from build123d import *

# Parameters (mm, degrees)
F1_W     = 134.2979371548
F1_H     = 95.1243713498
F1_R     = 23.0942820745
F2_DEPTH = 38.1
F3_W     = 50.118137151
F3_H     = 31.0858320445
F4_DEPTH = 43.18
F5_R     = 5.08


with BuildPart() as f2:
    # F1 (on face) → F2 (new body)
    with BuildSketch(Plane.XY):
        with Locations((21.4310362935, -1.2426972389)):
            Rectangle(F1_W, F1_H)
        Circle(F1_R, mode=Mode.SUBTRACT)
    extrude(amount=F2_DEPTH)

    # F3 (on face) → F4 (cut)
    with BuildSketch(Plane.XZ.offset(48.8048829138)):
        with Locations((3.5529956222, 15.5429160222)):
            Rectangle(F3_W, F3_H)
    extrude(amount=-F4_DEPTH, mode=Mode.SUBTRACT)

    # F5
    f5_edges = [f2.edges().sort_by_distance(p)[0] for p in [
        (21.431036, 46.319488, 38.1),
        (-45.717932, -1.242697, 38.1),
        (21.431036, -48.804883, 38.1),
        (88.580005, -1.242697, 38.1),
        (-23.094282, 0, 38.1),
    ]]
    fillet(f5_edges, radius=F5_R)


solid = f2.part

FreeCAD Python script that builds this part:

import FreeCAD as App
import Part
import Sketcher

V = App.Vector
Q = App.Units.Quantity


def edges_at(feature, points):
    """Names of the edges that pass closest to the given points."""
    edges = feature.Shape.Edges
    near = lambda p: min(range(len(edges)), key=lambda i: edges[i].distToShape(Part.Vertex(*p))[0])
    return sorted({f"Edge{near(p) + 1}" for p in points})


def add_polygon(sketch, points):
    """Adds a closed chain of lines whose ends are joined by coincident constraints."""
    first, n = sketch.GeometryCount, len(points)
    for a, b in zip(points, points[1:] + points[:1]):
        sketch.addGeometry(Part.LineSegment(App.Vector(*a, 0), App.Vector(*b, 0)), False)
    for i in range(n):
        sketch.addConstraint(Sketcher.Constraint("Coincident", first + i, 2, first + (i + 1) % n, 1))

doc = App.newDocument("Part")
body = doc.addObject("PartDesign::Body", "Body")

# Sketch on XY plane
sketch1 = body.newObject("Sketcher::SketchObject", "Sketch")
sketch1.AttachmentSupport = (doc.getObject("XY_Plane"), [""])
sketch1.MapMode = "FlatFace"
add_polygon(sketch1, [(-45.717932, 46.319488), (-45.717932, -48.804883), (88.580005, -48.804883), (88.580005, 46.319488)])  # lines 0-3
sketch1.addGeometry(Part.Circle(V(0, 0, 0), V(0, 0, 1), 23.094282), False)  # 4
sketch1.addConstraint(Sketcher.Constraint("Vertical", 0))
sketch1.addConstraint(Sketcher.Constraint("Horizontal", 1))
sketch1.addConstraint(Sketcher.Constraint("Vertical", 2))
sketch1.addConstraint(Sketcher.Constraint("Horizontal", 3))
sketch1.addConstraint(Sketcher.Constraint("Coincident", 4, 3, -1, 1))
sketch1.addConstraint(Sketcher.Constraint("Diameter", 4, Q("46.188564 mm")))
sketch1.addConstraint(Sketcher.Constraint("DistanceY", 0, 2, 0, 1, Q("95.124371 mm")))
sketch1.addConstraint(Sketcher.Constraint("DistanceX", 1, 1, 1, 2, Q("134.297937 mm")))
sketch1.addConstraint(Sketcher.Constraint("DistanceY", -1, 1, 2, 2, Q("46.319488 mm")))
sketch1.addConstraint(Sketcher.Constraint("DistanceX", 0, 2, -1, 1, Q("45.717932 mm")))
pad1 = body.newObject("PartDesign::Pad", "Pad")
pad1.Profile = sketch1
pad1.Length = Q("1.5 in")

# Sketch on XZ plane
sketch2 = body.newObject("Sketcher::SketchObject", "Sketch001")
sketch2.AttachmentSupport = (doc.getObject("XZ_Plane"), [""])
sketch2.MapMode = "FlatFace"
sketch2.AttachmentOffset = App.Placement(V(0, 0, 48.804883), App.Rotation())
add_polygon(sketch2, [(-21.506073, 31.085832), (-21.506073, 0), (28.612064, 0), (28.612064, 31.085832)])  # lines 0-3
sketch2.addConstraint(Sketcher.Constraint("Vertical", 0))
sketch2.addConstraint(Sketcher.Constraint("Horizontal", 1))
sketch2.addConstraint(Sketcher.Constraint("Vertical", 2))
sketch2.addConstraint(Sketcher.Constraint("Horizontal", 3))
sketch2.addConstraint(Sketcher.Constraint("PointOnObject", 0, 2, -1))
sketch2.addConstraint(Sketcher.Constraint("DistanceX", 1, 1, 1, 2, Q("50.118137 mm")))
sketch2.addConstraint(Sketcher.Constraint("DistanceY", 0, 2, 0, 1, Q("31.085832 mm")))
sketch2.addConstraint(Sketcher.Constraint("DistanceX", 0, 2, -1, 1, Q("21.506073 mm")))
pocket1 = body.newObject("PartDesign::Pocket", "Pocket")
pocket1.Profile = sketch2
pocket1.Length = Q("1.7 in")
doc.recompute()

fillet = body.newObject("PartDesign::Fillet", "Fillet")
fillet.Base = (pocket1, edges_at(pocket1, [
    (21.431, 46.319, 38.1),
    (-45.718, -1.243, 38.1),
    (21.431, -48.805, 38.1),
    (88.58, -1.243, 38.1),
    (-23.094, 0, 38.1),
]))
fillet.Radius = Q("0.2 in")

doc.recompute()
